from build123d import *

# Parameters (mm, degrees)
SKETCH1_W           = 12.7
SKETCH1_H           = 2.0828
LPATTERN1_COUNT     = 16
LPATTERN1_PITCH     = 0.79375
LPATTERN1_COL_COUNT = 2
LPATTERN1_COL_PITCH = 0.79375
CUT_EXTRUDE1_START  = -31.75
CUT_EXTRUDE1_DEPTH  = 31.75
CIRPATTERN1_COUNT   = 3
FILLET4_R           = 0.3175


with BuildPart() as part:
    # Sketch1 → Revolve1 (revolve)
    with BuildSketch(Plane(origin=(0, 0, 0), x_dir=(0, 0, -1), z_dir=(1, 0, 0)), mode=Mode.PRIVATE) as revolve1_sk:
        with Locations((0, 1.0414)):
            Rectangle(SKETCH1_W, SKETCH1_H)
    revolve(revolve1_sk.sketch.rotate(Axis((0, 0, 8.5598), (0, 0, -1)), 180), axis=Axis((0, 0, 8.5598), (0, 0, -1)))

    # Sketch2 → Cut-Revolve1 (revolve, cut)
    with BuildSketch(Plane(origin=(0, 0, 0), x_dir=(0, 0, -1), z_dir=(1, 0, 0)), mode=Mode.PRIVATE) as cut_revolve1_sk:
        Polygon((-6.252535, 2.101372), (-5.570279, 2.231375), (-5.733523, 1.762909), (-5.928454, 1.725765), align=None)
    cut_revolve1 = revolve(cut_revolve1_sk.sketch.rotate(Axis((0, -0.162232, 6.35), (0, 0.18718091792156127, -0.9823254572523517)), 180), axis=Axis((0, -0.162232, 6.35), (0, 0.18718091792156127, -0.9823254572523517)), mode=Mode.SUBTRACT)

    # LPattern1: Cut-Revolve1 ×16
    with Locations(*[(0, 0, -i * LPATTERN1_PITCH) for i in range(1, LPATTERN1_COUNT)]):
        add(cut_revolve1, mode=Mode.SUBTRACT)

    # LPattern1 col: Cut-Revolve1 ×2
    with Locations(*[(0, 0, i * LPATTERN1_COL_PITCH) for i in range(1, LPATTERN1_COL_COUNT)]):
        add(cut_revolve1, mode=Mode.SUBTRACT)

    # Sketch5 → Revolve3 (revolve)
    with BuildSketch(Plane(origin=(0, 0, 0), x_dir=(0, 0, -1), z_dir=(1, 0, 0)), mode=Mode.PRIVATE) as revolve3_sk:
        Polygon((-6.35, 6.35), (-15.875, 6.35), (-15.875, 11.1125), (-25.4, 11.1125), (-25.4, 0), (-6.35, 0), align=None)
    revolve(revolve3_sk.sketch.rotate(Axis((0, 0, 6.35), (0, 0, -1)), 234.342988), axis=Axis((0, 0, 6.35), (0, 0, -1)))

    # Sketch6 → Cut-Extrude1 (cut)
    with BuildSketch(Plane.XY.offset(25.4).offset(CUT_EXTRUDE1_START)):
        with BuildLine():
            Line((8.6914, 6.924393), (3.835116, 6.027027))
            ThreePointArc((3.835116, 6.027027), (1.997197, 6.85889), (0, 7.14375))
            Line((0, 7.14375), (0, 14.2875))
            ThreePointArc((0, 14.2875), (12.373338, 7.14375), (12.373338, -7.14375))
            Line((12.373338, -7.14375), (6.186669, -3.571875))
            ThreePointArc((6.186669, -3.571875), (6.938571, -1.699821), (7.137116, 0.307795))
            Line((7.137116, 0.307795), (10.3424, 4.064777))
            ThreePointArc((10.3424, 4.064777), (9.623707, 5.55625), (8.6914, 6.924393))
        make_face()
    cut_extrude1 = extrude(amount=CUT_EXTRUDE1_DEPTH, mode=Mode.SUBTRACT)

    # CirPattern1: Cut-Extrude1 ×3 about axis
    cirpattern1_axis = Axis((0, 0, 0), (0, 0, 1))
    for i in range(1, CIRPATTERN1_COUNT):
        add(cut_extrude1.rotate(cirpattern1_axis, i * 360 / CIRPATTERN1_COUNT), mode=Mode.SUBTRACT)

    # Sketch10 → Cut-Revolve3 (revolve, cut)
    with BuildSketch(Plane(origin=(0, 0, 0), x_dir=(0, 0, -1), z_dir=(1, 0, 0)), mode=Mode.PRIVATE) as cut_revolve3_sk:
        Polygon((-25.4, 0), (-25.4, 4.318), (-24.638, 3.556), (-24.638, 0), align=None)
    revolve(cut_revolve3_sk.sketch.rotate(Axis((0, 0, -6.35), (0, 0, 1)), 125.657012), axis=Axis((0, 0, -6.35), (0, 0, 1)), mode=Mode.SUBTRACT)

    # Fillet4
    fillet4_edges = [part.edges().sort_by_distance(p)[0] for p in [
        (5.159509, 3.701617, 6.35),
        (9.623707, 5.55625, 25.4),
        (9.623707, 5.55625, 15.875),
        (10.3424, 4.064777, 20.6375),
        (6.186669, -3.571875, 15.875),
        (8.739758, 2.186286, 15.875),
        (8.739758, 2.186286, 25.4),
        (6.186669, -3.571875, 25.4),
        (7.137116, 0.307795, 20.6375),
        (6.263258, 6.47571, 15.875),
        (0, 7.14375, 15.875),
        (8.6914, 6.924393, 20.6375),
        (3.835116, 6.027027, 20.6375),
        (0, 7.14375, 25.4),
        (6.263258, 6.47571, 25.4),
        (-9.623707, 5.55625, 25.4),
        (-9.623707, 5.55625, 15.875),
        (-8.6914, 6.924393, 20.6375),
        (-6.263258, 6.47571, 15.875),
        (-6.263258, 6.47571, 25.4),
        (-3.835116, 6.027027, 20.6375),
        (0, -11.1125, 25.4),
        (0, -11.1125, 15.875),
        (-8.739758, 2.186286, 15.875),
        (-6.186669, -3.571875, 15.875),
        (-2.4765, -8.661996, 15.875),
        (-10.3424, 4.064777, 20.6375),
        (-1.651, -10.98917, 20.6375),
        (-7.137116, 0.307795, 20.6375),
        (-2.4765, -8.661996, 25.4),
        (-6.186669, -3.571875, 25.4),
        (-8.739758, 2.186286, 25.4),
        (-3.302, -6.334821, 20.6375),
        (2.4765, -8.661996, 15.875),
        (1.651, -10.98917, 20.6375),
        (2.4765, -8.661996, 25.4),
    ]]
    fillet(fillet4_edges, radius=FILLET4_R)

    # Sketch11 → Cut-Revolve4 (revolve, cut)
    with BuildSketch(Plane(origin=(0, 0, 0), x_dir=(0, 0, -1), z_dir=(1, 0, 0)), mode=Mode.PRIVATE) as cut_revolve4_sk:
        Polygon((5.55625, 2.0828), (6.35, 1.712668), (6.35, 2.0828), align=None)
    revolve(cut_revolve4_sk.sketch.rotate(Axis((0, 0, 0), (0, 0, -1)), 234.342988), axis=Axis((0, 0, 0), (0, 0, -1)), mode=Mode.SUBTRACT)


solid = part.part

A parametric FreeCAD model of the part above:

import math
import FreeCAD as App
import Part
import Sketcher

V = App.Vector
Q = App.Units.Quantity


def edges_at(feature, points):
    """Names of the edges that pass closest to the given points."""
    edges = feature.Shape.Edges
    near = lambda p: min(range(len(edges)), key=lambda i: edges[i].distToShape(Part.Vertex(*p))[0])
    return sorted({f"Edge{near(p) + 1}" for p in points})


def add_polygon(sketch, points):
    """Adds a closed chain of lines whose ends are joined by coincident constraints."""
    first, n = sketch.GeometryCount, len(points)
    for a, b in zip(points, points[1:] + points[:1]):
        sketch.addGeometry(Part.LineSegment(App.Vector(*a, 0), App.Vector(*b, 0)), False)
    for i in range(n):
        sketch.addConstraint(Sketcher.Constraint("Coincident", first + i, 2, first + (i + 1) % n, 1))

doc = App.newDocument("Part")
body = doc.addObject("PartDesign::Body", "Body")

# Sketch on YZ plane
sketch1 = body.newObject("Sketcher::SketchObject", "Sketch")
sketch1.AttachmentSupport = (doc.getObject("YZ_Plane"), [""])
sketch1.MapMode = "FlatFace"
add_polygon(sketch1, [(2.1, 6.3), (0, 6.3), (0, -6.3), (2.1, -6.3)])  # lines 0-3
sketch1.addConstraint([
    Sketcher.Constraint("Horizontal", 0),
    Sketcher.Constraint("Vertical", 1),
    Sketcher.Constraint("Horizontal", 2),
    Sketcher.Constraint("Vertical", 3),
    Sketcher.Constraint("Symmetric", 0, 2, 1, 2, -1, 1),
    Sketcher.Constraint("DistanceY", 1, 2, 1, 1, Q("0.5 in")),
    Sketcher.Constraint("DistanceX", 0, 2, 0, 1, Q("0.082 in")),
])
revolution = body.newObject("PartDesign::Revolution", "Revolution")
revolution.Profile = sketch1
revolution.ReferenceAxis = (sketch1, ["V_Axis"])
revolution.Angle = 360

# Sketch on YZ plane
sketch2 = body.newObject("Sketcher::SketchObject", "Sketch001")
sketch2.AttachmentSupport = (doc.getObject("YZ_Plane"), [""])
sketch2.MapMode = "FlatFace"
add_polygon(sketch2, [(2.23, 5.57), (2.1, 6.25), (1.73, 5.93), (1.76, 5.73)])  # lines 0-3
sketch2.addGeometry(Part.LineSegment(V(-0.07, 5.84, 0), V(0.07, 5.16, 0)), True)  # axis
sketch2.addConstraint([
    Sketcher.Constraint("Parallel", 0, 2),
    Sketcher.Constraint("Parallel", 2, 4),
    Sketcher.Constraint("Equal", 1, 3),
    Sketcher.Constraint("Equal", 0, 4),
    Sketcher.Constraint("DistanceX", 4, 1, -1, 1, 0.065002),
    Sketcher.Constraint("DistanceX", -1, 1, 4, 2, 0.065001),
    Sketcher.Constraint("DistanceY", 4, 1, 0, 2, 0.4128),
    Sketcher.Constraint("Distance", 0, 0.694532),
    Sketcher.Constraint("Distance", 2, 0.198438),
    Sketcher.Constraint("DistanceX", -1, 1, 0, 2, 2.101372),
    Sketcher.Constraint("DistanceX", -1, 1, 2, 2, 1.762909),
    Sketcher.Constraint("DistanceY", -1, 1, 3, 2, 5.570279),
])
groove = body.newObject("PartDesign::Groove", "Groove")
groove.Profile = sketch2
groove.ReferenceAxis = (sketch2, ["Axis0"])
groove.Angle = 360
doc.recompute()

linearpattern = body.newObject("PartDesign::LinearPattern", "LinearPattern")
linearpattern.Originals = [groove]
linearpattern.Direction = (doc.getObject("Z_Axis"), [""])
linearpattern.Mode = "offset"
linearpattern.Offset = Q("0.03125 in")
linearpattern.Occurrences = 16
linearpattern.Reversed = True
body.Tip = linearpattern
doc.recompute()

linearpattern2 = body.newObject("PartDesign::LinearPattern", "LinearPattern001")
linearpattern2.Originals = [groove]
linearpattern2.Direction = (doc.getObject("Z_Axis"), [""])
linearpattern2.Mode = "offset"
linearpattern2.Offset = Q("0.03125 in")
linearpattern2.Occurrences = 2
body.Tip = linearpattern2

# Sketch on YZ plane
sketch3 = body.newObject("Sketcher::SketchObject", "Sketch002")
sketch3.AttachmentSupport = (doc.getObject("YZ_Plane"), [""])
sketch3.MapMode = "FlatFace"
add_polygon(sketch3, [(6.3, 6.3), (6.3, 15.9), (11.1, 15.9), (11.1, 25.4), (0, 25.4), (0, 6.3)])  # lines 0-5
sketch3.addConstraint([
    Sketcher.Constraint("Vertical", 0),
    Sketcher.Constraint("Horizontal", 1),
    Sketcher.Constraint("Vertical", 2),
    Sketcher.Constraint("Horizontal", 3),
    Sketcher.Constraint("Vertical", 4),
    Sketcher.Constraint("Horizontal", 5),
    Sketcher.Constraint("PointOnObject", 3, 2, -2),
    Sketcher.Constraint("Equal", 0, 2),
    Sketcher.Constraint("DistanceY", -1, 1, 2, 2, Q("1 in")),
    Sketcher.Constraint("DistanceX", 5, 1, 5, 2, Q("0.25 in")),
    Sketcher.Constraint("DistanceY", 4, 2, 4, 1, Q("0.75 in")),
    Sketcher.Constraint("DistanceX", 1, 1, 1, 2, Q("0.1875 in")),
])
revolution2 = body.newObject("PartDesign::Revolution", "Revolution001")
revolution2.Profile = sketch3
revolution2.ReferenceAxis = (sketch3, ["V_Axis"])
revolution2.Angle = 360

# Sketch on XY plane
sketch4 = body.newObject("Sketcher::SketchObject", "Sketch003")
sketch4.AttachmentSupport = (doc.getObject("XY_Plane"), [""])
sketch4.MapMode = "FlatFace"
sketch4.AttachmentOffset = App.Placement(V(0, 0, -0.25 * 25.4), App.Rotation())
sketch4.addGeometry([
    Part.LineSegment(V(3.8, 6, 0), V(8.7, 6.9, 0)),  # 0
    Part.ArcOfCircle(Part.Circle(V(0, 0, 0), V(0, 0, 1), 11.1), math.radians(21.46), math.radians(38.54)),  # 1
    Part.LineSegment(V(10.3, 4.1, 0), V(7.1, 0.3, 0)),  # 2
    Part.ArcOfCircle(Part.Circle(V(0, 0, 0), V(0, 0, 1), 7.1), math.radians(-30), math.radians(2)),  # 3
    Part.LineSegment(V(6.2, -3.6, 0), V(12.4, -7.1, 0)),  # 4
    Part.ArcOfCircle(Part.Circle(V(0, 0, 0), V(0, 0, 1), 14.3), math.radians(-30), math.radians(90)),  # 5
    Part.LineSegment(V(0, 14.3, 0), V(0, 7.1, 0)),  # 6
    Part.ArcOfCircle(Part.Circle(V(0, 0, 0), V(0, 0, 1), 7.1), math.radians(58), math.radians(90)),  # 7
], False)
sketch4.addConstraint([
    Sketcher.Constraint("Coincident", 0, 2, 1, 2),
    Sketcher.Constraint("Coincident", 1, 1, 2, 1),
    Sketcher.Constraint("Coincident", 2, 2, 3, 2),
    Sketcher.Constraint("Coincident", 3, 1, 4, 1),
    Sketcher.Constraint("Coincident", 4, 2, 5, 1),
    Sketcher.Constraint("Coincident", 5, 2, 6, 1),
    Sketcher.Constraint("Coincident", 6, 2, 7, 2),
    Sketcher.Constraint("Coincident", 7, 1, 0, 1),
    Sketcher.Constraint("Vertical", 6),
    Sketcher.Constraint("Coincident", 1, 3, -1, 1),
    Sketcher.Constraint("Coincident", 3, 3, -1, 1),
    Sketcher.Constraint("Coincident", 5, 3, -1, 1),
    Sketcher.Constraint("Coincident", 7, 3, -1, 1),
    Sketcher.Constraint("PointOnObject", 5, 2, -2),
    Sketcher.Constraint("Equal", 0, 2),
    Sketcher.Constraint("Angle", 4, Q("-30 deg")),
    Sketcher.Constraint("Radius", 1, Q("0.4375001 in")),
    Sketcher.Constraint("Radius", 5, Q("0.5625 in")),
    Sketcher.Constraint("Radius", 7, Q("0.2812499 in")),
    Sketcher.Constraint("DistanceX", 7, 1, 2, 2, Q("0.13 in")),
    Sketcher.Constraint("Distance", 4, Q("0.28125 in")),
    Sketcher.Constraint("DistanceY", 3, 1, -1, 1, Q("0.140625 in")),
    Sketcher.Constraint("DistanceX", 0, 2, 1, 1, Q("0.065 in")),
    Sketcher.Constraint("DistanceX", -1, 1, 0, 2, 8.6914),
])
pocket1 = body.newObject("PartDesign::Pocket", "Pocket")
pocket1.Profile = sketch4
pocket1.Length = Q("1.25 in")
pocket1.Reversed = True
doc.recompute()

polarpattern = body.newObject("PartDesign::PolarPattern", "PolarPattern")
polarpattern.Originals = [pocket1]
polarpattern.Axis = (doc.getObject("Z_Axis"), [""])
polarpattern.Angle = 360
polarpattern.Occurrences = 3
body.Tip = polarpattern

# Sketch on YZ plane
sketch5 = body.newObject("Sketcher::SketchObject", "Sketch004")
sketch5.AttachmentSupport = (doc.getObject("YZ_Plane"), [""])
sketch5.MapMode = "FlatFace"
add_polygon(sketch5, [(4.3, 25.4), (0, 25.4), (0, 24.6), (3.6, 24.6)])  # lines 0-3
sketch5.addConstraint([
    Sketcher.Constraint("Horizontal", 0),
    Sketcher.Constraint("Vertical", 1),
    Sketcher.Constraint("Horizontal", 2),
    Sketcher.Constraint("PointOnObject", 0, 2, -2),
    Sketcher.Constraint("DistanceY", -1, 1, 0, 2, Q("1 in")),
    Sketcher.Constraint("Angle", 3, Q("45 deg")),
    Sketcher.Constraint("DistanceX", 0, 2, 0, 1, Q("0.17 in")),
    Sketcher.Constraint("DistanceX", 2, 1, 2, 2, Q("0.14 in")),
])
groove2 = body.newObject("PartDesign::Groove", "Groove001")
groove2.Profile = sketch5
groove2.ReferenceAxis = (sketch5, ["V_Axis"])
groove2.Angle = 360
doc.recompute()

fillet = body.newObject("PartDesign::Fillet", "Fillet")
fillet.Base = (groove2, edges_at(groove2, [
    (5.16, 3.702, 6.35),
    (9.624, 5.556, 25.4),
    (9.624, 5.556, 15.875),
    (10.342, 4.065, 20.637),
    (6.939, -1.7, 15.875),
    (8.74, 2.186, 15.875),
    (8.74, 2.186, 25.4),
    (6.939, -1.7, 25.4),
    (7.137, 0.308, 20.637),
    (6.263, 6.476, 15.875),
    (-1.997, 6.859, 15.875),
    (8.691, 6.924, 20.637),
    (3.835, 6.027, 20.637),
    (-1.997, 6.859, 25.4),
    (6.263, 6.476, 25.4),
    (-9.624, 5.556, 25.4),
    (-9.624, 5.556, 15.875),
    (-8.691, 6.924, 20.637),
    (-6.263, 6.476, 15.875),
    (-6.263, 6.476, 25.4),
    (-3.835, 6.027, 20.637),
    (0, -11.112, 25.4),
    (0, -11.113, 15.875),
    (-8.74, 2.186, 15.875),
    (-4.941, -5.159, 15.875),
    (-2.476, -8.662, 15.875),
    (-10.342, 4.065, 20.637),
    (-1.651, -10.989, 20.637),
    (-7.137, 0.308, 20.637),
    (-2.476, -8.662, 25.4),
    (-4.941, -5.159, 25.4),
    (-8.74, 2.186, 25.4),
    (-3.302, -6.335, 20.637),
    (2.477, -8.662, 15.875),
    (1.651, -10.989, 20.637),
    (2.477, -8.662, 25.4),
]))
fillet.Radius = Q("0.0125 in")

# Sketch on YZ plane
sketch6 = body.newObject("Sketcher::SketchObject", "Sketch005")
sketch6.AttachmentSupport = (doc.getObject("YZ_Plane"), [""])
sketch6.MapMode = "FlatFace"
add_polygon(sketch6, [(2.08, -5.56), (1.71, -6.35), (2.08, -6.35)])  # lines 0-2
sketch6.addConstraint([
    Sketcher.Constraint("Horizontal", 1),
    Sketcher.Constraint("Vertical", 2),
    Sketcher.Constraint("Angle", 0, Q("-115.000018 deg")),
    Sketcher.Constraint("DistanceY", 2, 1, 2, 2, Q("0.03125 in")),
    Sketcher.Constraint("DistanceY", 0, 2, -1, 1, Q("0.25 in")),
    Sketcher.Constraint("DistanceX", -1, 1, 1, 2, Q("0.082 in")),
])
groove3 = body.newObject("PartDesign::Groove", "Groove002")
groove3.Profile = sketch6
groove3.ReferenceAxis = (sketch6, ["V_Axis"])
groove3.Angle = 360

doc.recompute()
